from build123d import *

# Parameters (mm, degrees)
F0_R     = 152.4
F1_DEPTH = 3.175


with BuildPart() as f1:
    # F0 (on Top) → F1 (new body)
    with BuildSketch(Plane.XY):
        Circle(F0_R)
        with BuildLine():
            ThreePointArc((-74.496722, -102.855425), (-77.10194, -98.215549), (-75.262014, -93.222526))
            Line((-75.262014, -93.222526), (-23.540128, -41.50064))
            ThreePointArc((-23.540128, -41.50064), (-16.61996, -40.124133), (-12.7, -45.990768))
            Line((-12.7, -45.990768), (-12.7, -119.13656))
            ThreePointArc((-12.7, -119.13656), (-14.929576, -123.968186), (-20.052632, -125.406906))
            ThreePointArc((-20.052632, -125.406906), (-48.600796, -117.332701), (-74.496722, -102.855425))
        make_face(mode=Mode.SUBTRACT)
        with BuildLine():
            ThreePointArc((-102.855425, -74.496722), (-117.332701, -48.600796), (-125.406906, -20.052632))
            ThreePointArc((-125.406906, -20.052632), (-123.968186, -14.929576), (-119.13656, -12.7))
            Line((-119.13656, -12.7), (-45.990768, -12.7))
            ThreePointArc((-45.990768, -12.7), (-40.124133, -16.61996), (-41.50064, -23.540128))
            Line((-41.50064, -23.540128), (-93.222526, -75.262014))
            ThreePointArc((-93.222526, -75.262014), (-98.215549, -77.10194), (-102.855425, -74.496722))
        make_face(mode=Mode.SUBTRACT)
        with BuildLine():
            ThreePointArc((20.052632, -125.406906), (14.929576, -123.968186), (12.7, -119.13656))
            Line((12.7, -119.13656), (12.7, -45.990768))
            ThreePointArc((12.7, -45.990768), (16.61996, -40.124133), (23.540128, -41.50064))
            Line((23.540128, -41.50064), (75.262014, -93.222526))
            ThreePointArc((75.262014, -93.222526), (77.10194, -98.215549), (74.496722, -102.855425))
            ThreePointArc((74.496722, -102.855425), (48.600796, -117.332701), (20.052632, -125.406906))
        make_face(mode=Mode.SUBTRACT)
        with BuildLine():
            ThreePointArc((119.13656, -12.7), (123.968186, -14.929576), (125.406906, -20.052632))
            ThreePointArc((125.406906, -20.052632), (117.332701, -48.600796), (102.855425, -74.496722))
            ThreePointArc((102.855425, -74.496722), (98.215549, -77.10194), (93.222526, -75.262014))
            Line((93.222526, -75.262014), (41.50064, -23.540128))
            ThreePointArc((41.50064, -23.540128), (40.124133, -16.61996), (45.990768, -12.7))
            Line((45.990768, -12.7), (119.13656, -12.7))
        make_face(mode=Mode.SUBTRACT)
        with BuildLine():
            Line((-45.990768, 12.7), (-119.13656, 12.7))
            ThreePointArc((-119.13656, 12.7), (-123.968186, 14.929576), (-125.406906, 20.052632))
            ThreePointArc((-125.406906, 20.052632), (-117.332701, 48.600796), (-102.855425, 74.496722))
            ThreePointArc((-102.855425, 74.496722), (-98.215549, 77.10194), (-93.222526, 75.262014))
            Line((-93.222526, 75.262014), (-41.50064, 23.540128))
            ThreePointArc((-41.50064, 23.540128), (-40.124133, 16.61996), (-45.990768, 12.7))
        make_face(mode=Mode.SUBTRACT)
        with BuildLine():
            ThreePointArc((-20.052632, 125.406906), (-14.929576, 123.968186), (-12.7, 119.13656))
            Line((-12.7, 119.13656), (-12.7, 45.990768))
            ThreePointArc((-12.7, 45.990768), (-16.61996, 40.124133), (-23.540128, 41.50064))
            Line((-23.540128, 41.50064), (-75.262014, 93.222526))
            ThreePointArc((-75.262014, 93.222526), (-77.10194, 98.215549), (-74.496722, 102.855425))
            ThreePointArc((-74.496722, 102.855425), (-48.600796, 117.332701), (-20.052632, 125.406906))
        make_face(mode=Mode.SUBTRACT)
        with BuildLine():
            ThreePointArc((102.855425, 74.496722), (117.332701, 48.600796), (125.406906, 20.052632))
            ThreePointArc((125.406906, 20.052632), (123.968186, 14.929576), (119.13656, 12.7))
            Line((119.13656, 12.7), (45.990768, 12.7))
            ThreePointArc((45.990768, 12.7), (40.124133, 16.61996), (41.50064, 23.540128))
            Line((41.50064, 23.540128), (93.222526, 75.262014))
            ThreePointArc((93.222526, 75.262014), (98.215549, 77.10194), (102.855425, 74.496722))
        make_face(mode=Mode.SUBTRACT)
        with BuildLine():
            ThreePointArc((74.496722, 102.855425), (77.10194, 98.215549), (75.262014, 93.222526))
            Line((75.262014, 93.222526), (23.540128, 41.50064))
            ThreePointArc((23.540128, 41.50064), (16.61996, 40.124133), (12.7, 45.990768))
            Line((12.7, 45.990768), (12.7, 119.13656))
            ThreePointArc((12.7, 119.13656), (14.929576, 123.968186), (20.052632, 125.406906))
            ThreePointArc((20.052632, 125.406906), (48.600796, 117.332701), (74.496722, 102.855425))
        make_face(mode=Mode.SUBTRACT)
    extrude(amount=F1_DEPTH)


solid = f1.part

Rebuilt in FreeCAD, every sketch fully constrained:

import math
import FreeCAD as App
import Part
import Sketcher
from FreeCAD import Vector
Q = App.Units.Quantity

doc = App.newDocument("Part")
params = doc.addObject("Spreadsheet::Sheet", "Params")
for row, (alias, value) in enumerate([
    ("sketch1_diameter", "12 in"),
    ("sketch1_radius", "4.9999999 in"),
    ("sketch1_radius2", "0.2500001 in"),
    ("pad1_length", "0.125 in"),
], start=1):
    params.set(f"A{row}", alias)
    params.set(f"B{row}", "=" + value)
    params.setAlias(f"B{row}", alias)

body = doc.addObject("PartDesign::Body", "Body")

# Sketch on XY plane
sketch1 = doc.addObject("Sketcher::SketchObject", "Sketch")
body.addObject(sketch1)
sketch1.AttachmentSupport = (doc.XY_Plane, [""])
sketch1.MapMode = "FlatFace"
sketch1.addGeometry([
    Part.Circle(Vector(0, 0, 0), Vector(0, 0, 1), 152.4),  # 0
    Part.ArcOfCircle(Part.Circle(Vector(0, -0.000002, 0), Vector(0, 0, 1), 126.999998), math.radians(-125.91528), math.radians(-99.084721)),  # 1
    Part.ArcOfCircle(Part.Circle(Vector(-70.771884, -97.712654, 0), Vector(0, 0, 1), 6.350001), math.radians(135.000017), math.radians(234.084703)),  # 2
    Part.LineSegment(Vector(-75.262014, -93.222526, 0), Vector(-23.540128, -41.50064, 0)),  # 3
    Part.ArcOfCircle(Part.Circle(Vector(-19.05, -45.990768, 0), Vector(0, 0, 1), 6.35), math.radians(-0.000001), math.radians(135.000001)),  # 4
    Part.LineSegment(Vector(-12.7, -45.990768, 0), Vector(-12.7, -119.13656, 0)),  # 5
    Part.ArcOfCircle(Part.Circle(Vector(-19.050001, -119.13656, 0), Vector(0, 0, 1), 6.350001), math.radians(-99.084718), math.radians(0.000001)),  # 6
    Part.ArcOfCircle(Part.Circle(Vector(-97.712654, -70.771884, 0), Vector(0, 0, 1), 6.350001), math.radians(-144.084703), math.radians(-45.000017)),  # 7
    Part.ArcOfCircle(Part.Circle(Vector(-0.000002, 0, 0), Vector(0, 0, 1), 126.999998), math.radians(-170.915279), math.radians(-144.08472)),  # 8
    Part.ArcOfCircle(Part.Circle(Vector(-119.13656, -19.050001, 0), Vector(0, 0, 1), 6.350001), math.radians(89.999999), math.radians(189.084718)),  # 9
    Part.LineSegment(Vector(-119.13656, -12.7, 0), Vector(-45.990768, -12.7, 0)),  # 10
    Part.ArcOfCircle(Part.Circle(Vector(-45.990768, -19.05, 0), Vector(0, 0, 1), 6.35), math.radians(-45.000001), math.radians(90.000001)),  # 11
    Part.LineSegment(Vector(-41.50064, -23.540128, 0), Vector(-93.222526, -75.262014, 0)),  # 12
    Part.ArcOfCircle(Part.Circle(Vector(0, -0.000002, 0), Vector(0, 0, 1), 126.999998), math.radians(-80.915279), math.radians(-54.08472)),  # 13
    Part.ArcOfCircle(Part.Circle(Vector(19.050001, -119.13656, 0), Vector(0, 0, 1), 6.350001), math.radians(179.999999), math.radians(279.084718)),  # 14
    Part.LineSegment(Vector(12.7, -119.13656, 0), Vector(12.7, -45.990768, 0)),  # 15
    Part.ArcOfCircle(Part.Circle(Vector(19.05, -45.990768, 0), Vector(0, 0, 1), 6.35), math.radians(44.999999), math.radians(180.000001)),  # 16
    Part.LineSegment(Vector(23.540128, -41.50064, 0), Vector(75.262014, -93.222526, 0)),  # 17
    Part.ArcOfCircle(Part.Circle(Vector(70.771884, -97.712654, 0), Vector(0, 0, 1), 6.350001), math.radians(-54.084703), math.radians(44.999983)),  # 18
    Part.LineSegment(Vector(45.990768, -12.7, 0), Vector(119.13656, -12.7, 0)),  # 19
    Part.ArcOfCircle(Part.Circle(Vector(119.13656, -19.050001, 0), Vector(0, 0, 1), 6.350001), math.radians(-9.084718), math.radians(90.000001)),  # 20
    Part.ArcOfCircle(Part.Circle(Vector(0.000002, 0, 0), Vector(0, 0, 1), 126.999998), math.radians(-35.91528), math.radians(-9.084721)),  # 21
    Part.ArcOfCircle(Part.Circle(Vector(97.712654, -70.771884, 0), Vector(0, 0, 1), 6.350001), math.radians(-134.999983), math.radians(-35.915297)),  # 22
    Part.LineSegment(Vector(93.222526, -75.262014, 0), Vector(41.50064, -23.540128, 0)),  # 23
    Part.ArcOfCircle(Part.Circle(Vector(45.990768, -19.05, 0), Vector(0, 0, 1), 6.35), math.radians(89.999999), math.radians(225.000001)),  # 24
    Part.ArcOfCircle(Part.Circle(Vector(-45.990768, 19.05, 0), Vector(0, 0, 1), 6.35), math.radians(-90.000001), math.radians(45.000001)),  # 25
    Part.LineSegment(Vector(-45.990768, 12.7, 0), Vector(-119.13656, 12.7, 0)),  # 26
    Part.ArcOfCircle(Part.Circle(Vector(-119.13656, 19.050001, 0), Vector(0, 0, 1), 6.350001), math.radians(170.915282), math.radians(270.000001)),  # 27
    Part.ArcOfCircle(Part.Circle(Vector(-0.000002, 0, 0), Vector(0, 0, 1), 126.999998), math.radians(144.08472), math.radians(170.915279)),  # 28
    Part.ArcOfCircle(Part.Circle(Vector(-97.712654, 70.771884, 0), Vector(0, 0, 1), 6.350001), math.radians(45.000017), math.radians(144.084703)),  # 29
    Part.LineSegment(Vector(-93.222526, 75.262014, 0), Vector(-41.50064, 23.540128, 0)),  # 30
    Part.ArcOfCircle(Part.Circle(Vector(0, 0.000002, 0), Vector(0, 0, 1), 126.999998), math.radians(99.084721), math.radians(125.91528)),  # 31
    Part.ArcOfCircle(Part.Circle(Vector(-19.050001, 119.13656, 0), Vector(0, 0, 1), 6.350001), math.radians(-0.000001), math.radians(99.084718)),  # 32
    Part.LineSegment(Vector(-12.7, 119.13656, 0), Vector(-12.7, 45.990768, 0)),  # 33
    Part.ArcOfCircle(Part.Circle(Vector(-19.05, 45.990768, 0), Vector(0, 0, 1), 6.35), math.radians(-135.000001), math.radians(0.000001)),  # 34
    Part.LineSegment(Vector(-23.540128, 41.50064, 0), Vector(-75.262014, 93.222526, 0)),  # 35
    Part.ArcOfCircle(Part.Circle(Vector(-70.771884, 97.712654, 0), Vector(0, 0, 1), 6.350001), math.radians(125.915297), math.radians(224.999983)),  # 36
    Part.ArcOfCircle(Part.Circle(Vector(97.712654, 70.771884, 0), Vector(0, 0, 1), 6.350001), math.radians(35.915297), math.radians(134.999983)),  # 37
    Part.ArcOfCircle(Part.Circle(Vector(0.000002, 0, 0), Vector(0, 0, 1), 126.999998), math.radians(9.084721), math.radians(35.91528)),  # 38
    Part.ArcOfCircle(Part.Circle(Vector(119.13656, 19.050001, 0), Vector(0, 0, 1), 6.350001), math.radians(-90.000001), math.radians(9.084718)),  # 39
    Part.LineSegment(Vector(119.13656, 12.7, 0), Vector(45.990768, 12.7, 0)),  # 40
    Part.ArcOfCircle(Part.Circle(Vector(45.990768, 19.05, 0), Vector(0, 0, 1), 6.35), math.radians(134.999999), math.radians(270.000001)),  # 41
    Part.LineSegment(Vector(41.50064, 23.540128, 0), Vector(93.222526, 75.262014, 0)),  # 42
    Part.ArcOfCircle(Part.Circle(Vector(0, 0.000002, 0), Vector(0, 0, 1), 126.999998), math.radians(54.08472), math.radians(80.915279)),  # 43
    Part.ArcOfCircle(Part.Circle(Vector(70.771884, 97.712654, 0), Vector(0, 0, 1), 6.350001), math.radians(-44.999983), math.radians(54.084703)),  # 44
    Part.LineSegment(Vector(75.262014, 93.222526, 0), Vector(23.540128, 41.50064, 0)),  # 45
    Part.ArcOfCircle(Part.Circle(Vector(19.05, 45.990768, 0), Vector(0, 0, 1), 6.35), math.radians(179.999999), math.radians(315.000001)),  # 46
    Part.LineSegment(Vector(12.7, 45.990768, 0), Vector(12.7, 119.13656, 0)),  # 47
    Part.ArcOfCircle(Part.Circle(Vector(19.050001, 119.13656, 0), Vector(0, 0, 1), 6.350001), math.radians(80.915282), math.radians(180.000001)),  # 48
], False)
sketch1.addConstraint([
    Sketcher.Constraint("Tangent", 1, 1, 2, 2),
    Sketcher.Constraint("Tangent", 2, 1, 3, 1),
    Sketcher.Constraint("Tangent", 3, 2, 4, 2),
    Sketcher.Constraint("Tangent", 4, 1, 5, 1),
    Sketcher.Constraint("Tangent", 5, 2, 6, 2),
    Sketcher.Constraint("Tangent", 6, 1, 1, 2),
    Sketcher.Constraint("Tangent", 7, 1, 8, 2),
    Sketcher.Constraint("Tangent", 8, 1, 9, 2),
    Sketcher.Constraint("Tangent", 9, 1, 10, 1),
    Sketcher.Constraint("Tangent", 10, 2, 11, 2),
    Sketcher.Constraint("Tangent", 11, 1, 12, 1),
    Sketcher.Constraint("Tangent", 12, 2, 7, 2),
    Sketcher.Constraint("Tangent", 13, 1, 14, 2),
    Sketcher.Constraint("Tangent", 14, 1, 15, 1),
    Sketcher.Constraint("Tangent", 15, 2, 16, 2),
    Sketcher.Constraint("Tangent", 16, 1, 17, 1),
    Sketcher.Constraint("Tangent", 17, 2, 18, 2),
    Sketcher.Constraint("Tangent", 18, 1, 13, 2),
    Sketcher.Constraint("Tangent", 19, 2, 20, 2),
    Sketcher.Constraint("Tangent", 20, 1, 21, 2),
    Sketcher.Constraint("Tangent", 21, 1, 22, 2),
    Sketcher.Constraint("Tangent", 22, 1, 23, 1),
    Sketcher.Constraint("Tangent", 23, 2, 24, 2),
    Sketcher.Constraint("Tangent", 24, 1, 19, 1),
    Sketcher.Constraint("Tangent", 25, 1, 26, 1),
    Sketcher.Constraint("Tangent", 26, 2, 27, 2),
    Sketcher.Constraint("Tangent", 27, 1, 28, 2),
    Sketcher.Constraint("Tangent", 28, 1, 29, 2),
    Sketcher.Constraint("Tangent", 29, 1, 30, 1),
    Sketcher.Constraint("Tangent", 30, 2, 25, 2),
    Sketcher.Constraint("Tangent", 31, 1, 32, 2),
    Sketcher.Constraint("Tangent", 32, 1, 33, 1),
    Sketcher.Constraint("Tangent", 33, 2, 34, 2),
    Sketcher.Constraint("Tangent", 34, 1, 35, 1),
    Sketcher.Constraint("Tangent", 35, 2, 36, 2),
    Sketcher.Constraint("Tangent", 36, 1, 31, 2),
    Sketcher.Constraint("Tangent", 37, 1, 38, 2),
    Sketcher.Constraint("Tangent", 38, 1, 39, 2),
    Sketcher.Constraint("Tangent", 39, 1, 40, 1),
    Sketcher.Constraint("Tangent", 40, 2, 41, 2),
    Sketcher.Constraint("Tangent", 41, 1, 42, 1),
    Sketcher.Constraint("Tangent", 42, 2, 37, 2),
    Sketcher.Constraint("Tangent", 43, 1, 44, 2),
    Sketcher.Constraint("Tangent", 44, 1, 45, 1),
    Sketcher.Constraint("Tangent", 45, 2, 46, 2),
    Sketcher.Constraint("Tangent", 46, 1, 47, 1),
    Sketcher.Constraint("Tangent", 47, 2, 48, 2),
    Sketcher.Constraint("Tangent", 48, 1, 43, 2),
    Sketcher.Constraint("Vertical", 5),
    Sketcher.Constraint("Horizontal", 10),
    Sketcher.Constraint("Vertical", 15),
    Sketcher.Constraint("Horizontal", 19),
    Sketcher.Constraint("Horizontal", 26),
    Sketcher.Constraint("Vertical", 33),
    Sketcher.Constraint("Horizontal", 40),
    Sketcher.Constraint("Vertical", 47),
    Sketcher.Constraint("Coincident", 0, 3, -1, 1),
    Sketcher.Constraint("Coincident", 1, 3, -1, 1),
    Sketcher.Constraint("Coincident", 8, 3, -1, 1),
    Sketcher.Constraint("Coincident", 13, 3, -1, 1),
    Sketcher.Constraint("Coincident", 21, 3, -1, 1),
    Sketcher.Constraint("Coincident", 28, 3, -1, 1),
    Sketcher.Constraint("Coincident", 31, 3, -1, 1),
    Sketcher.Constraint("Coincident", 38, 3, -1, 1),
    Sketcher.Constraint("Coincident", 43, 3, -1, 1),
    Sketcher.Constraint("Equal", 2, 4),
    Sketcher.Constraint("Equal", 4, 6),
    Sketcher.Constraint("Equal", 6, 7),
    Sketcher.Constraint("Equal", 1, 8),
    Sketcher.Constraint("Equal", 7, 9),
    Sketcher.Constraint("Equal", 9, 11),
    Sketcher.Constraint("Equal", 8, 13),
    Sketcher.Constraint("Equal", 11, 14),
    Sketcher.Constraint("Equal", 14, 16),
    Sketcher.Constraint("Equal", 16, 18),
    Sketcher.Constraint("Equal", 18, 20),
    Sketcher.Constraint("Equal", 13, 21),
    Sketcher.Constraint("Equal", 20, 22),
    Sketcher.Constraint("Equal", 22, 24),
    Sketcher.Constraint("Equal", 24, 25),
    Sketcher.Constraint("Equal", 25, 27),
    Sketcher.Constraint("Equal", 21, 28),
    Sketcher.Constraint("Equal", 27, 29),
    Sketcher.Constraint("Equal", 28, 31),
    Sketcher.Constraint("Equal", 29, 32),
    Sketcher.Constraint("Equal", 32, 34),
    Sketcher.Constraint("Equal", 34, 36),
    Sketcher.Constraint("Equal", 36, 37),
    Sketcher.Constraint("Equal", 31, 38),
    Sketcher.Constraint("Equal", 37, 39),
    Sketcher.Constraint("Equal", 39, 41),
    Sketcher.Constraint("Equal", 38, 43),
    Sketcher.Constraint("Equal", 41, 44),
    Sketcher.Constraint("Equal", 44, 46),
    Sketcher.Constraint("Equal", 46, 48),
    Sketcher.Constraint("Symmetric", 24, 3, 25, 3, -1, 1),
    Sketcher.Constraint("Symmetric", 16, 3, 34, 3, -1, 1),
    Sketcher.Constraint("Symmetric", 11, 3, 41, 3, -1, 1),
    Sketcher.Constraint("Symmetric", 4, 3, 46, 3, -1, 1),
    Sketcher.Constraint("Symmetric", 4, 3, 16, 3, -2),
    Sketcher.Constraint("Symmetric", 11, 3, 24, 3, -2),
    Sketcher.Constraint("Parallel", 3, 12),
    Sketcher.Constraint("Perpendicular", 12, 17),
    Sketcher.Constraint("Parallel", 17, 23),
    Sketcher.Constraint("Parallel", 23, 30),
    Sketcher.Constraint("Parallel", 30, 35),
    Sketcher.Constraint("Perpendicular", 35, 42),
    Sketcher.Constraint("Parallel", 42, 45),
    Sketcher.Constraint("Horizontal", 2, 3, 18, 3),
    Sketcher.Constraint("Equal", 40, 5),
    Sketcher.Constraint("Equal", 3, 12),
    Sketcher.Constraint("Diameter", 0, Q("12 in")),
    Sketcher.Constraint("Radius", 1, Q("4.9999999 in")),
    Sketcher.Constraint("Radius", 2, Q("0.2500001 in")),
    Sketcher.Constraint("DistanceX", 4, 1, -1, 1, Q("0.5 in")),
    Sketcher.Constraint("DistanceX", 10, 1, 10, 2, 73.145792),
])
sketch1.setExpression("Constraints[111]", "Params.sketch1_diameter")
sketch1.setExpression("Constraints[112]", "Params.sketch1_radius")
sketch1.setExpression("Constraints[113]", "Params.sketch1_radius2")
pad1 = doc.addObject("PartDesign::Pad", "Pad")
body.addObject(pad1)
pad1.Profile = sketch1
pad1.setExpression("Length", "Params.pad1_length")

doc.recompute()
